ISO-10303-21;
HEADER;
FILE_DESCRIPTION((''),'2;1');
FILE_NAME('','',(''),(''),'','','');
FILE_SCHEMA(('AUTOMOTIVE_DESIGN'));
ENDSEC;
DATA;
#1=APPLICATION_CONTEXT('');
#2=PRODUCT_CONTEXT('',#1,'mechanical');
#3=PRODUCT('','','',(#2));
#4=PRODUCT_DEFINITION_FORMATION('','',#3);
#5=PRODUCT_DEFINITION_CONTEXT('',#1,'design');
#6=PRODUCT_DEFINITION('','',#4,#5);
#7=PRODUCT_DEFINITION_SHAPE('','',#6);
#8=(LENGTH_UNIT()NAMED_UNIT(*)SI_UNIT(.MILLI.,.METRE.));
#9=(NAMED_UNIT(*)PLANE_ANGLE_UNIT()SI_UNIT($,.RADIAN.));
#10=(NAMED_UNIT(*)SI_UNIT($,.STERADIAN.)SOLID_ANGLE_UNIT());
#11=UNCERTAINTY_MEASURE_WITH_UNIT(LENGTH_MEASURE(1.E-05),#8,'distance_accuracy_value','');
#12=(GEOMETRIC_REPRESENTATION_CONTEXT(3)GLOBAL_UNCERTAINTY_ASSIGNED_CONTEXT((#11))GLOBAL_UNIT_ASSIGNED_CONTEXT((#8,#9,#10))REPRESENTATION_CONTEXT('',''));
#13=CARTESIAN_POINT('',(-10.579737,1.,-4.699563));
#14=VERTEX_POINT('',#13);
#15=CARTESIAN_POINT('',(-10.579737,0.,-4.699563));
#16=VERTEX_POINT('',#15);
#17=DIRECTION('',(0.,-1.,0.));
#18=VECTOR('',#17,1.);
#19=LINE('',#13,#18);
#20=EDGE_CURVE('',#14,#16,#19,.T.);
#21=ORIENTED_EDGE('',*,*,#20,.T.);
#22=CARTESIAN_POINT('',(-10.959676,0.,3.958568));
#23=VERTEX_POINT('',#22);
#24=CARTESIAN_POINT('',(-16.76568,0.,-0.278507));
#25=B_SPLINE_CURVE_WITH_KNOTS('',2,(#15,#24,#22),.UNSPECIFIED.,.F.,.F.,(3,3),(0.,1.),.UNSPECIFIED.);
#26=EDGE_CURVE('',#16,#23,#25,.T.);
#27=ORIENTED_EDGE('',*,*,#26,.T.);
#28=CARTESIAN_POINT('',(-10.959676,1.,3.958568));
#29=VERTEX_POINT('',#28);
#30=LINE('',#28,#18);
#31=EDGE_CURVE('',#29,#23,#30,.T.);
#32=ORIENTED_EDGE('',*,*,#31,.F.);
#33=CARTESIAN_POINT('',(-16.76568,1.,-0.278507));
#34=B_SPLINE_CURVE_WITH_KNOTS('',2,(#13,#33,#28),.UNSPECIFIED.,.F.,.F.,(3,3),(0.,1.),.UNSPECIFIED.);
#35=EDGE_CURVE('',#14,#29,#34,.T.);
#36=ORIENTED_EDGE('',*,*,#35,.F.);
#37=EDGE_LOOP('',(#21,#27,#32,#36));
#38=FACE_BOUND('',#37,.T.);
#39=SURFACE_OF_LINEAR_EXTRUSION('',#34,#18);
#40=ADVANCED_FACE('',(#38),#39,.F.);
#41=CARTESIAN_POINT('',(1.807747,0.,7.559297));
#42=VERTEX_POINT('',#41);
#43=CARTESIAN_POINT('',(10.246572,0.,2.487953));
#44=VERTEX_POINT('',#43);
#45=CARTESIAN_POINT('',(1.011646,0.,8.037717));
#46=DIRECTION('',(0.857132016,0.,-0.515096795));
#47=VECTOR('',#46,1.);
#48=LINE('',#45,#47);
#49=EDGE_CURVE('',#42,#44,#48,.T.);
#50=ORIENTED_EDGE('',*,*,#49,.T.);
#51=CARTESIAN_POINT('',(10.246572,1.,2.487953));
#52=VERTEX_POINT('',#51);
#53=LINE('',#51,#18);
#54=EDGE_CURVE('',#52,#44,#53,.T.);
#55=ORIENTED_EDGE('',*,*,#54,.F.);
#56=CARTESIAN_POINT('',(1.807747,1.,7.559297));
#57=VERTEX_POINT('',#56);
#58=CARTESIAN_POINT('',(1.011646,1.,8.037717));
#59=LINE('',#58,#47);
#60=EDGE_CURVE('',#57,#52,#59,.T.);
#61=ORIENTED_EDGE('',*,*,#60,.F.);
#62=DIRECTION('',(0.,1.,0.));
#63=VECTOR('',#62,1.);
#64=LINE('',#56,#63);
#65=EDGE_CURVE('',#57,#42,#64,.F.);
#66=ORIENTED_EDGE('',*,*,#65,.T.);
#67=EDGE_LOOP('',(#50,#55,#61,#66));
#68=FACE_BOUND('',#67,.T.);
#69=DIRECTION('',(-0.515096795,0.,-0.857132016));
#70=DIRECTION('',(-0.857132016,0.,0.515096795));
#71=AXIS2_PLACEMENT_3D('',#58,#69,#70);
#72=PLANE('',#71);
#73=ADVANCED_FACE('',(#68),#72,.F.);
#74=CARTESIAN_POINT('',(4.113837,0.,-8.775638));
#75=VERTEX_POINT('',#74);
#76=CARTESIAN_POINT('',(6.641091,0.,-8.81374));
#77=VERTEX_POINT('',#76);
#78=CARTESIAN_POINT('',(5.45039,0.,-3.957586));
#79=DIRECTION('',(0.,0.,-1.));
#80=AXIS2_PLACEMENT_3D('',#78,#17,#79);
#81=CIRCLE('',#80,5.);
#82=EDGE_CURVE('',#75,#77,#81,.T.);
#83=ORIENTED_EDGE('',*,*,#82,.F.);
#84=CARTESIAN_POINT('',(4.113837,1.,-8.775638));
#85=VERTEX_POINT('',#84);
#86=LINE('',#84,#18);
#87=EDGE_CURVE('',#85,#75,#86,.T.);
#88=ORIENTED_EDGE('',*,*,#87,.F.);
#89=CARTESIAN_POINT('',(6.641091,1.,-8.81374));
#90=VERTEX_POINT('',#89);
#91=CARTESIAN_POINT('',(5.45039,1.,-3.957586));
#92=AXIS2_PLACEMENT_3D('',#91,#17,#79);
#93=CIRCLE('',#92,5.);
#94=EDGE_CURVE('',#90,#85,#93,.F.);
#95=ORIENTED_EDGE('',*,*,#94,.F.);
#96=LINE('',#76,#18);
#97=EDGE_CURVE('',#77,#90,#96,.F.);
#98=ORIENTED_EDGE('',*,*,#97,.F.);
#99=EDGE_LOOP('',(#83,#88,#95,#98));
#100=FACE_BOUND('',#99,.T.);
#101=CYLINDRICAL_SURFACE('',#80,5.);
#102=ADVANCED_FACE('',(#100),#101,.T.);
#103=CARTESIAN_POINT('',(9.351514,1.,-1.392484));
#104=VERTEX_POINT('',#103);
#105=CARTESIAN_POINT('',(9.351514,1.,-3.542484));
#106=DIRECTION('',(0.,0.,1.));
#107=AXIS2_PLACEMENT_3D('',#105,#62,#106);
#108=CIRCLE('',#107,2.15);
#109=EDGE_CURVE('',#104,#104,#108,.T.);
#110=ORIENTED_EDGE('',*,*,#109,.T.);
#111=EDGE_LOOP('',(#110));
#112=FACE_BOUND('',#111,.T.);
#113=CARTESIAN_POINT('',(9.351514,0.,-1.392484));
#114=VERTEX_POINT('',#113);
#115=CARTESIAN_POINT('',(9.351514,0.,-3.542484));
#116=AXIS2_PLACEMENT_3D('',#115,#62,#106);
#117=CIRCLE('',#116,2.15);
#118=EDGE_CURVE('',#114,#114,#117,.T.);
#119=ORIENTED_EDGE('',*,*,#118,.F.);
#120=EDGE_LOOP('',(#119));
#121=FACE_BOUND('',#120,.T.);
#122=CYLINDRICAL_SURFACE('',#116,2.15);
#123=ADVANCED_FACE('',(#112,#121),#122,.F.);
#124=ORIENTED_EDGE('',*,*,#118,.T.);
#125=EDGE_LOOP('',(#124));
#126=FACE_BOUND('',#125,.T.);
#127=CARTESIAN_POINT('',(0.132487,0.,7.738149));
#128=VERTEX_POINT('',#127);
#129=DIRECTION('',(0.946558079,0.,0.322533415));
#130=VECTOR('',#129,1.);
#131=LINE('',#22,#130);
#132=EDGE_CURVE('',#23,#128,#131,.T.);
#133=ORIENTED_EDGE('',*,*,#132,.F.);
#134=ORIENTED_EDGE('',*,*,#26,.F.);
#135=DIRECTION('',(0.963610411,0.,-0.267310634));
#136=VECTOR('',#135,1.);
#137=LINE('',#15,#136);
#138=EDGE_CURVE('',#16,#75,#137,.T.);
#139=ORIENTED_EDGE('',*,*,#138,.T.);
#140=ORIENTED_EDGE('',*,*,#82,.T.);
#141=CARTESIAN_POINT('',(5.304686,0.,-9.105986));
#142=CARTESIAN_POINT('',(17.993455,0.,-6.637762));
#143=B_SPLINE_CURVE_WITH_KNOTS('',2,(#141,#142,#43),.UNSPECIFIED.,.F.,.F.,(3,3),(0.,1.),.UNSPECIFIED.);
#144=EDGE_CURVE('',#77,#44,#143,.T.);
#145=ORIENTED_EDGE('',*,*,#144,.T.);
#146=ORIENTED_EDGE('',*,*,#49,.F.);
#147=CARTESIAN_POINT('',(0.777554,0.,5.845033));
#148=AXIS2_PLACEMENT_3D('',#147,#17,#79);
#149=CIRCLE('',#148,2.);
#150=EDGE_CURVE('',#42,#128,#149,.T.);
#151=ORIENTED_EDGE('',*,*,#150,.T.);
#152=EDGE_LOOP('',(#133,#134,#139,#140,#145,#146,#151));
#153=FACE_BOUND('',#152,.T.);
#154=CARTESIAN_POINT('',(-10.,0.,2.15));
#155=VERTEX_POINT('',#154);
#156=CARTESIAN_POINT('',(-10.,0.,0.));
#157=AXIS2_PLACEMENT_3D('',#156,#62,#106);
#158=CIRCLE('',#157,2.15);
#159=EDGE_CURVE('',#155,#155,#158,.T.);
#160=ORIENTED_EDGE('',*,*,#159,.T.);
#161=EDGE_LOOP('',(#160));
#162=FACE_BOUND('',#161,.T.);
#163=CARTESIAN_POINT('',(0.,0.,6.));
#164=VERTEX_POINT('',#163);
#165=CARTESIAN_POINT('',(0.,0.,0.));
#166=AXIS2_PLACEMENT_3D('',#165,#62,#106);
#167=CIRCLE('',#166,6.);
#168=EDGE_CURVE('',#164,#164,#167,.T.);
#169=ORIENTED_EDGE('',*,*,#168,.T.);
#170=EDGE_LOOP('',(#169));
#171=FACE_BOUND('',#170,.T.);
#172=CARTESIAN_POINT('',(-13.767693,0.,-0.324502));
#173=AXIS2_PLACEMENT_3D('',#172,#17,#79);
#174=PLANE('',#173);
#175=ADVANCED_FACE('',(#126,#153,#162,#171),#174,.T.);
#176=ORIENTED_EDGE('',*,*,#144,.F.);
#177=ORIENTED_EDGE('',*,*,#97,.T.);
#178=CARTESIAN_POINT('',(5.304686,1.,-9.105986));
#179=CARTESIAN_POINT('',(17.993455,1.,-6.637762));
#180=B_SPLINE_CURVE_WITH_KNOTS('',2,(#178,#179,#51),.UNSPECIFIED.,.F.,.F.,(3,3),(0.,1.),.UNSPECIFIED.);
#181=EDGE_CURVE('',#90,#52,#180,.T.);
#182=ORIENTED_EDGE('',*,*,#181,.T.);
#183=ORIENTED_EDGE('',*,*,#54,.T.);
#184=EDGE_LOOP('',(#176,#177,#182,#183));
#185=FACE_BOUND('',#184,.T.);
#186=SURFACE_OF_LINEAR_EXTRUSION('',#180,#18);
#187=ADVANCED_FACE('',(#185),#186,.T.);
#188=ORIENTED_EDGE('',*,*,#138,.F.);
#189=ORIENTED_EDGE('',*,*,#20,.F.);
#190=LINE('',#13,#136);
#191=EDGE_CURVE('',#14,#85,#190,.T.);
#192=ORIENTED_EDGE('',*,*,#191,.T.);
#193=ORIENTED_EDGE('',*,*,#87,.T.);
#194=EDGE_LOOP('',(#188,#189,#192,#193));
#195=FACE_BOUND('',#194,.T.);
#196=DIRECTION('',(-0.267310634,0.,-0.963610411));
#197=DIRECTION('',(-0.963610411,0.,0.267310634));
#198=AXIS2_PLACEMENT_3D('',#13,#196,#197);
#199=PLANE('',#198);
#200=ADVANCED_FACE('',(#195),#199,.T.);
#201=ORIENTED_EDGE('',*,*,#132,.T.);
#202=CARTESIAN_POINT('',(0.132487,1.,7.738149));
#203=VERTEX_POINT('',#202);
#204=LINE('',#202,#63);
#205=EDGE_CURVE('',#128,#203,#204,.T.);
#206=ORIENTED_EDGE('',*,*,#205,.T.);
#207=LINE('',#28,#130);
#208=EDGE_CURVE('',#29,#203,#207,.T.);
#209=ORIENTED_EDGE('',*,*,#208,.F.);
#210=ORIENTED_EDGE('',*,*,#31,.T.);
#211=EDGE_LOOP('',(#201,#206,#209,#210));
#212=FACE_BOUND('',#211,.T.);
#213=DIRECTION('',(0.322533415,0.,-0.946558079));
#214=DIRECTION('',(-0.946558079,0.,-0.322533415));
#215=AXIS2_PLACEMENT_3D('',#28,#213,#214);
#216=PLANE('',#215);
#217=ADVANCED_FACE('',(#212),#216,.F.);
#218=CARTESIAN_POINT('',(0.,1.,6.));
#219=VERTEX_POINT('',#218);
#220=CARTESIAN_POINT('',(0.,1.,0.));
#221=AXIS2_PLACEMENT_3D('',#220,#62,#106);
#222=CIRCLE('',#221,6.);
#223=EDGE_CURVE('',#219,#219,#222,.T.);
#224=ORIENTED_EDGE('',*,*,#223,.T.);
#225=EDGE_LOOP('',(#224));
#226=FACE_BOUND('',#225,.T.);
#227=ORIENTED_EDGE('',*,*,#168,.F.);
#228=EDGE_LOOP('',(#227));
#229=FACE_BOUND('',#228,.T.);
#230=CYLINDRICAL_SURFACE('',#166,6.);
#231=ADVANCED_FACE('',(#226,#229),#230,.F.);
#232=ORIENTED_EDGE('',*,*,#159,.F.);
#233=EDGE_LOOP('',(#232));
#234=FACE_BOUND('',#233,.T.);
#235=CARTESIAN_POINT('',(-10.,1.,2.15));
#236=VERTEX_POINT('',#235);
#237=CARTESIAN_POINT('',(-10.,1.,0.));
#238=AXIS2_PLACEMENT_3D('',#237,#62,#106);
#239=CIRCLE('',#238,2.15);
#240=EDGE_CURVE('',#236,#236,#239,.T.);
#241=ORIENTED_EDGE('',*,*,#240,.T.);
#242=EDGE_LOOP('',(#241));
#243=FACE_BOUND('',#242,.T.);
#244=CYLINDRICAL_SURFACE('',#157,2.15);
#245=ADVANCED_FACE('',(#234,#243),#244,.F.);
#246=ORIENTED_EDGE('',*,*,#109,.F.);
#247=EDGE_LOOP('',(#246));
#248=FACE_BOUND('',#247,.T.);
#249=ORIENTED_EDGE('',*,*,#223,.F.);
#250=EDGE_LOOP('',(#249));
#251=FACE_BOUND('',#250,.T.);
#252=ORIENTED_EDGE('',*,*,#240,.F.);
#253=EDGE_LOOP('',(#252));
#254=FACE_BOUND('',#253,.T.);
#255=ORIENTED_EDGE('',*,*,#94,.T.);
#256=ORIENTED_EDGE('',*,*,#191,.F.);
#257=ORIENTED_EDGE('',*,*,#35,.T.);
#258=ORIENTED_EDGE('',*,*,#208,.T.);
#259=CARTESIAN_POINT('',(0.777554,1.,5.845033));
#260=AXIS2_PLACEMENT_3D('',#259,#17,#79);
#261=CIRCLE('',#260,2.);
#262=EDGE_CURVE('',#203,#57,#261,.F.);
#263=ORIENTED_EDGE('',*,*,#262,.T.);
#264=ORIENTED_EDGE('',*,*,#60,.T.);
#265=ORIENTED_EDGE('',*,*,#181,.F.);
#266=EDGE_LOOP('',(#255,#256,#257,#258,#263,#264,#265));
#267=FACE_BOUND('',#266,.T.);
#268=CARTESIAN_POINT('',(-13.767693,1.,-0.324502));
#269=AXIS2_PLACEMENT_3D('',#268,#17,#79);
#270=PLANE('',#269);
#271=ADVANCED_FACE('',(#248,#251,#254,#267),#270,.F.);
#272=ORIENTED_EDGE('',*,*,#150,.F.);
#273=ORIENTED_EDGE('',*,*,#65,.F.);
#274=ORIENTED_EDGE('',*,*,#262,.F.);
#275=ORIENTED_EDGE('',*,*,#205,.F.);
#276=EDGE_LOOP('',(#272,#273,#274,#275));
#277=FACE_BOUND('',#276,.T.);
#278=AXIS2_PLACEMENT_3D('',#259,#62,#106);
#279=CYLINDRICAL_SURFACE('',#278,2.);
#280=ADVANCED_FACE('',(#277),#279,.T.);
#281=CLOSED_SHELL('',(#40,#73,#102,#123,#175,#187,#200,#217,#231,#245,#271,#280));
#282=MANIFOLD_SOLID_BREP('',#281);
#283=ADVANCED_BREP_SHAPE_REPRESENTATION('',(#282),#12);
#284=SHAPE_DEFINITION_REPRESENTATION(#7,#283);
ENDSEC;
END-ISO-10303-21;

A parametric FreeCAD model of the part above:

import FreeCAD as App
import Part
import Sketcher


def edges_at(feature, points):
    """Names of the edges that pass closest to the given points."""
    edges = feature.Shape.Edges
    near = lambda p: min(range(len(edges)), key=lambda i: edges[i].distToShape(Part.Vertex(*p))[0])
    return sorted({f"Edge{near(p) + 1}" for p in points})

doc = App.newDocument("Part")
params = doc.addObject("Spreadsheet::Sheet", "Params")
for row, (alias, value) in enumerate([
    ("pad1_length", "1 mm"),
    ("sketch2_diameter", "12 mm"),
    ("sketch2_diameter2", "4.3 mm"),
    ("pocket1_length", "1 mm"),
    ("fillet_radius", "2 mm"),
    ("fillet2_radius", "5 mm"),
], start=1):
    params.set(f"A{row}", alias)
    params.set(f"B{row}", "=" + value)
    params.setAlias(f"B{row}", alias)

body = doc.addObject("PartDesign::Body", "Body")

sketch1 = body.newObject("Sketcher::SketchObject", "Sketch")
sketch1.AttachmentSupport = (doc.getObject("XZ_Plane"), [""])
sketch1.MapMode = "FlatFace"
sketch1.addGeometry(Part.LineSegment(App.Vector(5.304686, -9.105986, 0), App.Vector(-10.579737, -4.699563, 0)), False)
sketch1.addGeometry(Part.BSplineCurve([App.Vector(-10.579737, -4.699563, 0), App.Vector(-16.76568, -0.278507, 0), App.Vector(-10.959676, 3.958568, 0)], [3, 3], [0, 1], False, 2, [1, 1, 1], False), False)
sketch1.addGeometry(Part.LineSegment(App.Vector(-10.959676, 3.958568, 0), App.Vector(1.011646, 8.037717, 0)), False)
sketch1.addGeometry(Part.LineSegment(App.Vector(1.011646, 8.037717, 0), App.Vector(10.246572, 2.487953, 0)), False)
sketch1.addGeometry(Part.BSplineCurve([App.Vector(5.304686, -9.105986, 0), App.Vector(17.993455, -6.637762, 0), App.Vector(10.246572, 2.487953, 0)], [3, 3], [0, 1], False, 2, [1, 1, 1], False), False)
sketch1.addConstraint(Sketcher.Constraint("Block", 1))
sketch1.addConstraint(Sketcher.Constraint("Block", 4))
sketch1.addConstraint(Sketcher.Constraint("Coincident", 0, 2, 1, 1))
sketch1.addConstraint(Sketcher.Constraint("Coincident", 1, 2, 2, 1))
sketch1.addConstraint(Sketcher.Constraint("Coincident", 2, 2, 3, 1))
sketch1.addConstraint(Sketcher.Constraint("Coincident", 3, 2, 4, 2))
sketch1.addConstraint(Sketcher.Constraint("Coincident", 4, 1, 0, 1))
sketch1.addConstraint(Sketcher.Constraint("DistanceY", 0, 2, 2, 2, 12.737279))
sketch1.addConstraint(Sketcher.Constraint("Distance", 2, 12.647214))
pad1 = body.newObject("PartDesign::Pad", "Pad")
pad1.Profile = sketch1
pad1.setExpression("Length", "Params.pad1_length")
pad1.Reversed = True

sketch2 = body.newObject("Sketcher::SketchObject", "Sketch001")
sketch2.AttachmentSupport = (doc.getObject("XZ_Plane"), [""])
sketch2.MapMode = "FlatFace"
sketch2.AttachmentOffset = App.Placement(App.Vector(0, 0, -1), App.Rotation())
sketch2.addGeometry(Part.Circle(App.Vector(0, 0, 0), App.Vector(0, 0, 1), 6), False)
sketch2.addGeometry(Part.Circle(App.Vector(-10, 0, 0), App.Vector(0, 0, 1), 2.1), False)
sketch2.addGeometry(Part.Circle(App.Vector(9.4, -3.5, 0), App.Vector(0, 0, 1), 2.1), False)
sketch2.addConstraint(Sketcher.Constraint("Coincident", 0, 3, -1, 1))
sketch2.addConstraint(Sketcher.Constraint("Equal", 1, 2))
sketch2.addConstraint(Sketcher.Constraint("PointOnObject", 1, 3, -1))
sketch2.addConstraint(Sketcher.Constraint("Diameter", 0, 12.0))
sketch2.addConstraint(Sketcher.Constraint("Diameter", 1, 4.3))
sketch2.addConstraint(Sketcher.Constraint("DistanceX", 1, 3, -1, 1, 10.0))
sketch2.addConstraint(Sketcher.Constraint("DistanceX", -1, 1, 2, 3, 9.351514))
sketch2.addConstraint(Sketcher.Constraint("DistanceY", 2, 3, -1, 1, 3.542484))
sketch2.setExpression("Constraints[3]", "Params.sketch2_diameter")
sketch2.setExpression("Constraints[4]", "Params.sketch2_diameter2")
pocket1 = body.newObject("PartDesign::Pocket", "Pocket")
pocket1.Profile = sketch2
pocket1.setExpression("Length", "Params.pocket1_length")
pocket1.Reversed = True
doc.recompute()

fillet = body.newObject("PartDesign::Fillet", "Fillet")
fillet.Base = (pocket1, edges_at(pocket1, [(1.012, 0.5, 8.038)]))
fillet.setExpression("Radius", "Params.fillet_radius")
doc.recompute()

fillet2 = body.newObject("PartDesign::Fillet", "Fillet001")
fillet2.Base = (fillet, edges_at(fillet, [(5.305, 0.5, -9.106)]))
fillet2.setExpression("Radius", "Params.fillet2_radius")

doc.recompute()
